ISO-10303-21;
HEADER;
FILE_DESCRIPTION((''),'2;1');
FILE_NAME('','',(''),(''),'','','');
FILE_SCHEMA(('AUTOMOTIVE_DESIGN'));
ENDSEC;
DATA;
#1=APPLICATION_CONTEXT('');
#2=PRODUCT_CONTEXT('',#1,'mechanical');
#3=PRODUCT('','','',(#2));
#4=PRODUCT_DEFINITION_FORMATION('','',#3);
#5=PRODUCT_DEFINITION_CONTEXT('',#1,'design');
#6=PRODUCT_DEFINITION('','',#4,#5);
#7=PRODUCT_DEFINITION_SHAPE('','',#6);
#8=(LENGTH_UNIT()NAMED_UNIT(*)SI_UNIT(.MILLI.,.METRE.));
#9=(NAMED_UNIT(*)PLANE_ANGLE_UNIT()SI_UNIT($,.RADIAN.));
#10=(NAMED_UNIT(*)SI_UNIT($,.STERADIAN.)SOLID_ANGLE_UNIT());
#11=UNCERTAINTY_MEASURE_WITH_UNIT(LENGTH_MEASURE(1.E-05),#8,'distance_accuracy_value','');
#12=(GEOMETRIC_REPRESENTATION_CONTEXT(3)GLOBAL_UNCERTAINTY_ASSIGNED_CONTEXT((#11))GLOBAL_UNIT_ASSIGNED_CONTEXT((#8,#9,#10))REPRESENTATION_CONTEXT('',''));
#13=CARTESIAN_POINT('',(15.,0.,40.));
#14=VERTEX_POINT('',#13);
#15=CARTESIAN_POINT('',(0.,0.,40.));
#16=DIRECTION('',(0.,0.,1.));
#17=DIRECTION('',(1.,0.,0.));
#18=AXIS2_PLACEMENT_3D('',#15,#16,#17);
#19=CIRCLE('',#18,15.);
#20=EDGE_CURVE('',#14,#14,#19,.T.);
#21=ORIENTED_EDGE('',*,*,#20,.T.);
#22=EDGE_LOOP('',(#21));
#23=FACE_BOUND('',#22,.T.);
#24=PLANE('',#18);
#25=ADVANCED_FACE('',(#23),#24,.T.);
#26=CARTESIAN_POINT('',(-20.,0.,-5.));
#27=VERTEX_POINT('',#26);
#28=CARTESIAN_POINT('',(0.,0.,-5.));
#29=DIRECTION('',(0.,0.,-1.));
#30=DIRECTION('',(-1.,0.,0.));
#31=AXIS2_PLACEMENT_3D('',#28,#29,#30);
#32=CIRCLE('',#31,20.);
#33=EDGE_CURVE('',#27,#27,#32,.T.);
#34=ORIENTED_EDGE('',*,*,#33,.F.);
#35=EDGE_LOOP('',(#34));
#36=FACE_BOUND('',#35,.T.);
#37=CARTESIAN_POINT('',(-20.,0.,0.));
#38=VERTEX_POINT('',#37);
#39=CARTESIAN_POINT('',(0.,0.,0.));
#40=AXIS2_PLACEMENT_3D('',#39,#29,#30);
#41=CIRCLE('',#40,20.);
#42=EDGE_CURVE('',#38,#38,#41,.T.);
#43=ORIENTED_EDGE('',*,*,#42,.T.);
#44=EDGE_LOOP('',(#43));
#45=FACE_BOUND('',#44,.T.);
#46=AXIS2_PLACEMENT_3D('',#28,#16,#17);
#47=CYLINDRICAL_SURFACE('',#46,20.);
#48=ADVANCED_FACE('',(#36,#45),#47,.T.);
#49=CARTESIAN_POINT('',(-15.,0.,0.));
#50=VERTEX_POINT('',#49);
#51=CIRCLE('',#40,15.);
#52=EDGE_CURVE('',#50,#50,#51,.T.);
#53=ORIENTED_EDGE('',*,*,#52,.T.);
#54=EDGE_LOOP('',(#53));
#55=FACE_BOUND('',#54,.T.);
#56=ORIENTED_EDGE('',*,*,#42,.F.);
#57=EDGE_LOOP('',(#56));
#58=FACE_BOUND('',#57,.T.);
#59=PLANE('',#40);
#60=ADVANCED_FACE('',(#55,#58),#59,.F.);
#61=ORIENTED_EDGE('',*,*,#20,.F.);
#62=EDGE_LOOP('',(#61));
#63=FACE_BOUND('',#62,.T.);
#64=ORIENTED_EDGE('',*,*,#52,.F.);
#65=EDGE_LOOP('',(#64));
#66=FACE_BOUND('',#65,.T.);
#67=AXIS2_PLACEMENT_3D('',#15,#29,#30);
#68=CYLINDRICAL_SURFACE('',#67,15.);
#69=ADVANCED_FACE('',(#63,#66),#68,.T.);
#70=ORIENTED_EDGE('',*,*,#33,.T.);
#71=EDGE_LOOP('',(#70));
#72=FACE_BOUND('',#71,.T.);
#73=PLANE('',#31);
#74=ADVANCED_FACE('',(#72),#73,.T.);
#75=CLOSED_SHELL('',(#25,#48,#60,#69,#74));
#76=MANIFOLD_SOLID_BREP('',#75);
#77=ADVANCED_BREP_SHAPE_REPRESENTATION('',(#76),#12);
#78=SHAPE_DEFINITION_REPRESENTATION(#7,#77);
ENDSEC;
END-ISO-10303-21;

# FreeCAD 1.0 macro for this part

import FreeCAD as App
import Part
import Sketcher
from FreeCAD import Vector

doc = App.newDocument("Part")
body = doc.addObject("PartDesign::Body", "Body")

# Sketch on XY plane
sketch1 = body.newObject("Sketcher::SketchObject", "Sketch")
sketch1.AttachmentSupport = (doc.getObject("XY_Plane"), [""])
sketch1.MapMode = "FlatFace"
sketch1.addGeometry(Part.Circle(Vector(0, 0, 0), Vector(0, 0, 1), 15), False)
sketch1.addConstraint(Sketcher.Constraint("Coincident", 0, 3, -1, 1))
sketch1.addConstraint(Sketcher.Constraint("Diameter", 0, 30.0))
pad1 = body.newObject("PartDesign::Pad", "Pad")
pad1.Profile = sketch1
pad1.Length = 40

# Sketch on XY plane
sketch2 = body.newObject("Sketcher::SketchObject", "Sketch001")
sketch2.AttachmentSupport = (doc.getObject("XY_Plane"), [""])
sketch2.MapMode = "FlatFace"
sketch2.addGeometry(Part.Circle(Vector(0, 0, 0), Vector(0, 0, 1), 20), False)
sketch2.addConstraint(Sketcher.Constraint("Coincident", 0, 3, -1, 1))
sketch2.addConstraint(Sketcher.Constraint("Diameter", 0, 40.0))
pad2 = body.newObject("PartDesign::Pad", "Pad001")
pad2.Profile = sketch2
pad2.Length = 5
pad2.Reversed = True

doc.recompute()
